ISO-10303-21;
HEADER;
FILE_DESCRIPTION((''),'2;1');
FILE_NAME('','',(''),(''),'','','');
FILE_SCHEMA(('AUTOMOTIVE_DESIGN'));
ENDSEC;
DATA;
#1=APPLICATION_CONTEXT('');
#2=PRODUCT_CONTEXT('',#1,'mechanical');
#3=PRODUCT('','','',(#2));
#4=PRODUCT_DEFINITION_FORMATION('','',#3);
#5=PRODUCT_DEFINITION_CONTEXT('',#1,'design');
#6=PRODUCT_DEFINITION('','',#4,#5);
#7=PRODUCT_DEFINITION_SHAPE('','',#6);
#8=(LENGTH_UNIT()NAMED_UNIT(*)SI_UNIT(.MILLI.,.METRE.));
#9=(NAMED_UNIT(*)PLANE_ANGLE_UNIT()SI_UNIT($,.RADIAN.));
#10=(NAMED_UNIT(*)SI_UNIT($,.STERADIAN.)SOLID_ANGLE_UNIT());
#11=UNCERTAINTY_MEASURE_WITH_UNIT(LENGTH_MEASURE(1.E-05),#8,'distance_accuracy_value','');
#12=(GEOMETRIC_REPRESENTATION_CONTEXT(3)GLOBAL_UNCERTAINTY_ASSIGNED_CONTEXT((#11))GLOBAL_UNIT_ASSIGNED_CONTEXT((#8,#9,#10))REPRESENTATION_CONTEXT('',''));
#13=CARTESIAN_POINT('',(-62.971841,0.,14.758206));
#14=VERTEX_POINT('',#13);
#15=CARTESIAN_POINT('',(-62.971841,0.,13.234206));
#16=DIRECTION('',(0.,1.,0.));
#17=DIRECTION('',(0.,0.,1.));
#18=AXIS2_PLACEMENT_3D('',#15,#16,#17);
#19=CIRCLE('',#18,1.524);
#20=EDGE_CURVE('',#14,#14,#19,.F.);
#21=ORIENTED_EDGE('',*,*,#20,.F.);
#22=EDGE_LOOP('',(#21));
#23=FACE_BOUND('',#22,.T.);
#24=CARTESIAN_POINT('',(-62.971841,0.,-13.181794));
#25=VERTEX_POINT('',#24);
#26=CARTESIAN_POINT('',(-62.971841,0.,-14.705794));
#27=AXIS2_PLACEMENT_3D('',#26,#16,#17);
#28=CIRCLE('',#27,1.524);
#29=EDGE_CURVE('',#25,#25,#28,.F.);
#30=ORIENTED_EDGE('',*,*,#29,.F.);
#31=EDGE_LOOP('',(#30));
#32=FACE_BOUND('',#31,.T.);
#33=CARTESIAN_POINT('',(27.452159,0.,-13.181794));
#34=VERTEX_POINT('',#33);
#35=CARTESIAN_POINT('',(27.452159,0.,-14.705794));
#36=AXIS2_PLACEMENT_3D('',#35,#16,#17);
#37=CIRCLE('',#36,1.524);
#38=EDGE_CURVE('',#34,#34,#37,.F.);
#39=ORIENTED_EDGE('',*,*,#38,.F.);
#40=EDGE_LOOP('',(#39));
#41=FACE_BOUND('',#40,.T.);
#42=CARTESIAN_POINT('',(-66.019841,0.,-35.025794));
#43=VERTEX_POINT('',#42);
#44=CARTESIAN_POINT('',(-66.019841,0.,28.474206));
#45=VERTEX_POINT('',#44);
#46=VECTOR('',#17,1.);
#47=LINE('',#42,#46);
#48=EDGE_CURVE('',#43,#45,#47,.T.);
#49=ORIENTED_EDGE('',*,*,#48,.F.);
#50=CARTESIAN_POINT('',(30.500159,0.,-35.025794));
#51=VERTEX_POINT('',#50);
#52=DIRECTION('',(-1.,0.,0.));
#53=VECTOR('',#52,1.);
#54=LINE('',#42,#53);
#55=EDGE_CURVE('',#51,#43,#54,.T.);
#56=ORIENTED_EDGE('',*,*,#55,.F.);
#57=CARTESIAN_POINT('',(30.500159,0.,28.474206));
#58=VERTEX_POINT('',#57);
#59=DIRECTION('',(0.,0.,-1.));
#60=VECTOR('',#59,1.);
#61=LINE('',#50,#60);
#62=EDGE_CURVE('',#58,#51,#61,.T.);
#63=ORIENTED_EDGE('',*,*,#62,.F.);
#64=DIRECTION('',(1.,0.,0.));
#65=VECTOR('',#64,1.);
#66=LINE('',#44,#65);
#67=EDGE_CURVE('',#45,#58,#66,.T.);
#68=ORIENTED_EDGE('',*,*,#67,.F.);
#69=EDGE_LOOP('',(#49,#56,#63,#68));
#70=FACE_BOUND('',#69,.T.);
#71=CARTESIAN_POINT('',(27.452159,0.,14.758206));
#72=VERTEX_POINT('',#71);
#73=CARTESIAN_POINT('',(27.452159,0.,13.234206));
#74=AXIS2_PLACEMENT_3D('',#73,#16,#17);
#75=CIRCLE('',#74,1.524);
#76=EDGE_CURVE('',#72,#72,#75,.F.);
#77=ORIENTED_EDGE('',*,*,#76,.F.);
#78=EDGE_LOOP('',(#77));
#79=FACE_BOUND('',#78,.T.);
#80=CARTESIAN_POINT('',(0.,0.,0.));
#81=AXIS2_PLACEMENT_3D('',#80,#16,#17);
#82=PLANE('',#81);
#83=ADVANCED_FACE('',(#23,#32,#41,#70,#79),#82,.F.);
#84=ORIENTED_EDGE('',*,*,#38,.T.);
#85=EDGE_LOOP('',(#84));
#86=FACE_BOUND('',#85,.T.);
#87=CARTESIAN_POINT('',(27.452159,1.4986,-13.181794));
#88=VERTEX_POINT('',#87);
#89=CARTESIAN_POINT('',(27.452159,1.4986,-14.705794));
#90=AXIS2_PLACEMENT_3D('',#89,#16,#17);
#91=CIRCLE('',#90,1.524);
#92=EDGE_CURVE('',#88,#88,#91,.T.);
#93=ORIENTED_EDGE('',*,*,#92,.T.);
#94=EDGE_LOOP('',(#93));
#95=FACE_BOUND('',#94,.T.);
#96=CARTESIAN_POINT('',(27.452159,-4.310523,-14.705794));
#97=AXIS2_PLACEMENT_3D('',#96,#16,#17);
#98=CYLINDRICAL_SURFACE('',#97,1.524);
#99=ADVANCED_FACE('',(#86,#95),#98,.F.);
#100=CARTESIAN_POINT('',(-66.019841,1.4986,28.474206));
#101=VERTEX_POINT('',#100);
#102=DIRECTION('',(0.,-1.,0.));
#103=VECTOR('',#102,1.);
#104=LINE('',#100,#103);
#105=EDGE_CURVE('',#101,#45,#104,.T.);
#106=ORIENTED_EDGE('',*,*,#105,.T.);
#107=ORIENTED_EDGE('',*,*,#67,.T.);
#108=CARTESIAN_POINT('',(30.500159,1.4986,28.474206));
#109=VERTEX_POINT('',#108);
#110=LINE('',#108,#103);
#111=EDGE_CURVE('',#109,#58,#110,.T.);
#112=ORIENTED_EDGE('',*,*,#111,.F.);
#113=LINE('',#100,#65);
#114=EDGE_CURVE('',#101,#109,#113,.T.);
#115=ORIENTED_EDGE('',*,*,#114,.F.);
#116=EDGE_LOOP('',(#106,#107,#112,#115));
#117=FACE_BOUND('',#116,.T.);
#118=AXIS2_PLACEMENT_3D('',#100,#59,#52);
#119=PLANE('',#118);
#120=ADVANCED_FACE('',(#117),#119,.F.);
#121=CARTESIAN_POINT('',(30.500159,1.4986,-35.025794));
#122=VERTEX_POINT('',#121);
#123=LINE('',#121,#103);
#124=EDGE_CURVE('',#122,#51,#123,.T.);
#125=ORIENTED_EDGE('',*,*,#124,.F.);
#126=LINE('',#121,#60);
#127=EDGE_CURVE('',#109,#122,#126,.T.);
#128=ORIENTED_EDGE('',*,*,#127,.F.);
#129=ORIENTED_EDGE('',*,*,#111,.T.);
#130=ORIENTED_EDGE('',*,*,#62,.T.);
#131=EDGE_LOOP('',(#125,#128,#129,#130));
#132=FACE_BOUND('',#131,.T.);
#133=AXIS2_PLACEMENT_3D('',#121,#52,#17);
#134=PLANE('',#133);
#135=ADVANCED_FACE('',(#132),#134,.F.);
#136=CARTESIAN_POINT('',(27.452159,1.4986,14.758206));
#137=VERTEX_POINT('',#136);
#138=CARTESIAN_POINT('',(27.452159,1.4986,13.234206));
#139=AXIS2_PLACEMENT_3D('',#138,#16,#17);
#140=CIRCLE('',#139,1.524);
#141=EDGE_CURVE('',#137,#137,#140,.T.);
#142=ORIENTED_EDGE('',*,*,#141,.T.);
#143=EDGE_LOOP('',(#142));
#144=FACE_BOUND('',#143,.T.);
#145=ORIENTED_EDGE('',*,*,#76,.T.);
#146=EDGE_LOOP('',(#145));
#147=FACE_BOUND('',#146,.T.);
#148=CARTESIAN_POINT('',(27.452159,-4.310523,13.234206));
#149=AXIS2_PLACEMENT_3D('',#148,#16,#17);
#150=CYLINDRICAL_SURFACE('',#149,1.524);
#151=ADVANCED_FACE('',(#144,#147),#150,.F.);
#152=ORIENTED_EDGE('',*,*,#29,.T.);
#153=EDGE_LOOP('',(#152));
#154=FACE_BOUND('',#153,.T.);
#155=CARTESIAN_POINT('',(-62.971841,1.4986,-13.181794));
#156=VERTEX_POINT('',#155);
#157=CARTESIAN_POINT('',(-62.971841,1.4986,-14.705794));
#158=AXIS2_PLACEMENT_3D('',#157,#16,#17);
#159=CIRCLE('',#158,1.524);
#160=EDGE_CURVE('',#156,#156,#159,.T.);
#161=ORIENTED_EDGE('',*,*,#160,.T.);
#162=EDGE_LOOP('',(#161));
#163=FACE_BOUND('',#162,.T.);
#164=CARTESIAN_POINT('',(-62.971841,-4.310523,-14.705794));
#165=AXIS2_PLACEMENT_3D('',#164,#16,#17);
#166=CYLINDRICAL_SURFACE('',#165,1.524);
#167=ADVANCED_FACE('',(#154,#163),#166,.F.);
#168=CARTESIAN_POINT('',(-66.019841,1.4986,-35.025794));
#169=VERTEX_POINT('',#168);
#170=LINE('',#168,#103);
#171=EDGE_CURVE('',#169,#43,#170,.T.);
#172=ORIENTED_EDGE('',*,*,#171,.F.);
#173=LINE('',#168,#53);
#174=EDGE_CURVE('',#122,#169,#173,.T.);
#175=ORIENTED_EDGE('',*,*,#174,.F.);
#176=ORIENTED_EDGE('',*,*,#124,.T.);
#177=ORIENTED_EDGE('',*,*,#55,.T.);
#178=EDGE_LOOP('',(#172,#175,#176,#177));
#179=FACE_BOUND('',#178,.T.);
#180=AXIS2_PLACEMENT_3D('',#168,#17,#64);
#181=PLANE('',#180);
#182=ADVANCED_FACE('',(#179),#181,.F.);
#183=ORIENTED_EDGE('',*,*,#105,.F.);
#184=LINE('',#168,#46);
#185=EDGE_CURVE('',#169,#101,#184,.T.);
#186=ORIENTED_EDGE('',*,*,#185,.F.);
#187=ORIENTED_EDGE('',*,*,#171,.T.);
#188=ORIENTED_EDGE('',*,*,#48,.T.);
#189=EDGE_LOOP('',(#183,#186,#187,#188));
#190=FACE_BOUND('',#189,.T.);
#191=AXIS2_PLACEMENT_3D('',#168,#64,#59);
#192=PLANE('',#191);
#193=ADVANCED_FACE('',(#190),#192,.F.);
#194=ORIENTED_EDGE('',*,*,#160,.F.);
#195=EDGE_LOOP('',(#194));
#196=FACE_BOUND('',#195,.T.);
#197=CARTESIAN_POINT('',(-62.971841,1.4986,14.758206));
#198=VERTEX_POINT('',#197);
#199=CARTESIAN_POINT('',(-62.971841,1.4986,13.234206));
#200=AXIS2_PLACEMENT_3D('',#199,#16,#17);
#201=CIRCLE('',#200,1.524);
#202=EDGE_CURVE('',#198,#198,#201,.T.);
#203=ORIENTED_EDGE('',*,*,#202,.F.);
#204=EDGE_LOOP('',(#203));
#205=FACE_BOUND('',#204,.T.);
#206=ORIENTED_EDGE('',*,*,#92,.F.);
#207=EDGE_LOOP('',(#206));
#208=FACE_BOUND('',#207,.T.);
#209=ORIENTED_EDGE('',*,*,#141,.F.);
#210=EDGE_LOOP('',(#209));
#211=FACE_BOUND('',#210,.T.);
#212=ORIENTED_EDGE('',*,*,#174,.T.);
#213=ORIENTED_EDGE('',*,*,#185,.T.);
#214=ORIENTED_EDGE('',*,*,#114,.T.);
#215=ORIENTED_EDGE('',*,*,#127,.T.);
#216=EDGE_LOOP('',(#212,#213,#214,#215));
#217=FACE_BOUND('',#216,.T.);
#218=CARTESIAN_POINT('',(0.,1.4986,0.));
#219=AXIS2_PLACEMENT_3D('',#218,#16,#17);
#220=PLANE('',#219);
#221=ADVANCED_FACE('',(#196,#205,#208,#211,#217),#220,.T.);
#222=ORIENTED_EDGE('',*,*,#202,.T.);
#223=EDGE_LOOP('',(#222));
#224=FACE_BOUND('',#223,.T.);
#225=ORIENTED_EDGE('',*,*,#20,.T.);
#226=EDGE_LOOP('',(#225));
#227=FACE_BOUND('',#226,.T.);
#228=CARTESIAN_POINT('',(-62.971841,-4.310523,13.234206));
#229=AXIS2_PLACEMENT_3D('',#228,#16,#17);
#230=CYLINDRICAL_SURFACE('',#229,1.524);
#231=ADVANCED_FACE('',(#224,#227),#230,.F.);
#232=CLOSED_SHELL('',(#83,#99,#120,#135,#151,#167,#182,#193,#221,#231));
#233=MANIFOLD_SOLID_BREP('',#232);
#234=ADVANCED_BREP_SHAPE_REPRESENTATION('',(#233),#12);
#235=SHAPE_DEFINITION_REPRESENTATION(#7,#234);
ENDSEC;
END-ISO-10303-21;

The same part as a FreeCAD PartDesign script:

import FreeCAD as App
import Part
import Sketcher
from FreeCAD import Vector
Q = App.Units.Quantity


def add_polygon(sketch, points):
    """Adds a closed chain of lines whose ends are joined by coincident constraints."""
    first, n = sketch.GeometryCount, len(points)
    for a, b in zip(points, points[1:] + points[:1]):
        sketch.addGeometry(Part.LineSegment(App.Vector(*a, 0), App.Vector(*b, 0)), False)
    for i in range(n):
        sketch.addConstraint(Sketcher.Constraint("Coincident", first + i, 2, first + (i + 1) % n, 1))

doc = App.newDocument("Part")
params = doc.addObject("Spreadsheet::Sheet", "Params")
for row, (alias, value) in enumerate([
    ("sketch1_width", "3.8 in"),
    ("sketch1_height", "2.5 in"),
    ("pad1_length", "0.059 in"),
    ("sketch2_diameter", "0.12 in"),
    ("pocket1_length", "0.059 in"),
], start=1):
    params.set(f"A{row}", alias)
    params.set(f"B{row}", "=" + value)
    params.setAlias(f"B{row}", alias)

body = doc.addObject("PartDesign::Body", "Body")

# Sketch on XZ plane
sketch1 = body.newObject("Sketcher::SketchObject", "Sketch")
sketch1.AttachmentSupport = (doc.getObject("XZ_Plane"), [""])
sketch1.MapMode = "FlatFace"
add_polygon(sketch1, [(-66, -35), (-66, 28), (31, 28), (31, -35)])  # lines 0-3
sketch1.addConstraint([
    Sketcher.Constraint("Vertical", 0),
    Sketcher.Constraint("Horizontal", 1),
    Sketcher.Constraint("Vertical", 2),
    Sketcher.Constraint("Horizontal", 3),
    Sketcher.Constraint("DistanceX", 1, 1, 1, 2, Q("3.8 in")),
    Sketcher.Constraint("DistanceY", 0, 1, 0, 2, Q("2.5 in")),
    Sketcher.Constraint("DistanceX", 0, 2, -1, 1, Q("66.019841 mm")),
    Sketcher.Constraint("DistanceY", -1, 1, 0, 2, Q("28.474206 mm")),
])
sketch1.setExpression("Constraints[8]", "Params.sketch1_width")
sketch1.setExpression("Constraints[9]", "Params.sketch1_height")
pad1 = body.newObject("PartDesign::Pad", "Pad")
pad1.Profile = sketch1
pad1.setExpression("Length", "Params.pad1_length")
pad1.Reversed = True

# Sketch on XZ plane
sketch2 = body.newObject("Sketcher::SketchObject", "Sketch001")
sketch2.AttachmentSupport = (doc.getObject("XZ_Plane"), [""])
sketch2.MapMode = "FlatFace"
sketch2.AttachmentOffset = App.Placement(Vector(0, 0, -0.059 * 25.4), App.Rotation())
sketch2.addGeometry([
    Part.Circle(Vector(-63, -14.7, 0), Vector(0, 0, 1), 1.5),
    Part.Circle(Vector(-63, 13.2, 0), Vector(0, 0, 1), 1.5),
    Part.Circle(Vector(27.5, -14.7, 0), Vector(0, 0, 1), 1.5),
    Part.Circle(Vector(27.5, 13.2, 0), Vector(0, 0, 1), 1.5),
], False)
sketch2.addConstraint([
    Sketcher.Constraint("Equal", 0, 1),
    Sketcher.Constraint("Equal", 1, 2),
    Sketcher.Constraint("Equal", 2, 3),
    Sketcher.Constraint("Horizontal", 0, 3, 2, 3),
    Sketcher.Constraint("Horizontal", 1, 3, 3, 3),
    Sketcher.Constraint("Vertical", 0, 3, 1, 3),
    Sketcher.Constraint("Vertical", 2, 3, 3, 3),
    Sketcher.Constraint("Diameter", 0, Q("0.12 in")),
    Sketcher.Constraint("DistanceY", 0, 3, 1, 3, Q("1.1 in")),
    Sketcher.Constraint("DistanceX", 0, 3, 2, 3, Q("3.56 in")),
    Sketcher.Constraint("DistanceX", 0, 3, -1, 1, Q("62.971841 mm")),
    Sketcher.Constraint("DistanceY", 0, 3, -1, 1, Q("14.705794 mm")),
])
sketch2.setExpression("Constraints[7]", "Params.sketch2_diameter")
pocket1 = body.newObject("PartDesign::Pocket", "Pocket")
pocket1.Profile = sketch2
pocket1.setExpression("Length", "Params.pocket1_length")
pocket1.Reversed = True

doc.recompute()
